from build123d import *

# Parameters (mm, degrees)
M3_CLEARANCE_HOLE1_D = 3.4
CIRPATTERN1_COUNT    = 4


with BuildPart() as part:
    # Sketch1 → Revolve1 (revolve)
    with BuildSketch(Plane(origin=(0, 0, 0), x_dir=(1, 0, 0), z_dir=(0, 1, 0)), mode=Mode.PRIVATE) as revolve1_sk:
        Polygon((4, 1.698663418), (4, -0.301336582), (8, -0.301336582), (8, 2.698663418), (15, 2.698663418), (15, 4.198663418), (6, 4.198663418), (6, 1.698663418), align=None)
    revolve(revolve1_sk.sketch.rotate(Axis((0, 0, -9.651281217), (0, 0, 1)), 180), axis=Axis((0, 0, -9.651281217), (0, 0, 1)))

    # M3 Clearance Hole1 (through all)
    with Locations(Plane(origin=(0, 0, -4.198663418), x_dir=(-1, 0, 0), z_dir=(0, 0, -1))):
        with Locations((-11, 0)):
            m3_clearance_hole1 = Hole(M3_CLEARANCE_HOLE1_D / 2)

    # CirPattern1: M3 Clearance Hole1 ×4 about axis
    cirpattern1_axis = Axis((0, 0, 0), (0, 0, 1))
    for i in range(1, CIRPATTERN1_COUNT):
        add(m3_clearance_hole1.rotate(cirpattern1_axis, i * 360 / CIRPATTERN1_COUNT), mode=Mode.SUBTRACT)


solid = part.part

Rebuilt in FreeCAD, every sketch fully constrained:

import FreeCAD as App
import Part
import Sketcher
from FreeCAD import Vector


def add_polygon(sketch, points):
    """Adds a closed chain of lines whose ends are joined by coincident constraints."""
    first, n = sketch.GeometryCount, len(points)
    for a, b in zip(points, points[1:] + points[:1]):
        sketch.addGeometry(Part.LineSegment(App.Vector(*a, 0), App.Vector(*b, 0)), False)
    for i in range(n):
        sketch.addConstraint(Sketcher.Constraint("Coincident", first + i, 2, first + (i + 1) % n, 1))

doc = App.newDocument("Part")
body = doc.addObject("PartDesign::Body", "Body")

# Sketch on XZ plane
sketch1 = body.newObject("Sketcher::SketchObject", "Sketch")
sketch1.AttachmentSupport = (doc.getObject("XZ_Plane"), [""])
sketch1.MapMode = "FlatFace"
add_polygon(sketch1, [(4, -1.7), (4, 0.3), (8, 0.3), (8, -2.7), (15, -2.7), (15, -4.2), (6, -4.2), (6, -1.7)])  # lines 0-7
sketch1.addConstraint([
    Sketcher.Constraint("Vertical", 0),
    Sketcher.Constraint("Horizontal", 1),
    Sketcher.Constraint("Vertical", 2),
    Sketcher.Constraint("Horizontal", 3),
    Sketcher.Constraint("Vertical", 4),
    Sketcher.Constraint("Horizontal", 5),
    Sketcher.Constraint("Vertical", 6),
    Sketcher.Constraint("Horizontal", 7),
    Sketcher.Constraint("Equal", 7, 0),
    Sketcher.Constraint("DistanceX", 1, 1, 1, 2, 4.0),
    Sketcher.Constraint("DistanceX", 3, 1, 3, 2, 7.0),
    Sketcher.Constraint("DistanceX", 5, 2, 5, 1, 9.0),
    Sketcher.Constraint("DistanceY", 2, 2, 2, 1, 3.0),
    Sketcher.Constraint("DistanceY", 4, 2, 4, 1, 1.5),
    Sketcher.Constraint("DistanceX", -1, 1, 0, 2, 4.0),
    Sketcher.Constraint("DistanceY", -1, 1, 0, 2, 0.301337),
])
revolution = body.newObject("PartDesign::Revolution", "Revolution")
revolution.Profile = sketch1
revolution.ReferenceAxis = (sketch1, ["V_Axis"])
revolution.Angle = 360

# Sketch on XY plane
sketch2 = body.newObject("Sketcher::SketchObject", "Sketch001")
sketch2.AttachmentSupport = (doc.getObject("XY_Plane"), [""])
sketch2.MapMode = "FlatFace"
sketch2.AttachmentOffset = App.Placement(Vector(0, 0, -4.198663), App.Rotation())
sketch2.addGeometry(Part.Circle(Vector(11, 0, 0), Vector(0, 0, 1), 1.7), False)
sketch2.addConstraint([
    Sketcher.Constraint("PointOnObject", 0, 3, -1),
    Sketcher.Constraint("Diameter", 0, 3.4),
    Sketcher.Constraint("DistanceX", -1, 1, 0, 3, 11.0),
])
doc.recompute()
hole = body.newObject("PartDesign::Hole", "Hole")
hole.Profile = sketch2
hole.ThreadType = "None"
hole.Diameter = 3.4
hole.DepthType = "ThroughAll"
hole.Reversed = True
doc.recompute()

polarpattern = body.newObject("PartDesign::PolarPattern", "PolarPattern")
polarpattern.Originals = [hole]
polarpattern.Axis = (doc.getObject("Z_Axis"), [""])
polarpattern.Angle = 360
polarpattern.Occurrences = 4
body.Tip = polarpattern

doc.recompute()
